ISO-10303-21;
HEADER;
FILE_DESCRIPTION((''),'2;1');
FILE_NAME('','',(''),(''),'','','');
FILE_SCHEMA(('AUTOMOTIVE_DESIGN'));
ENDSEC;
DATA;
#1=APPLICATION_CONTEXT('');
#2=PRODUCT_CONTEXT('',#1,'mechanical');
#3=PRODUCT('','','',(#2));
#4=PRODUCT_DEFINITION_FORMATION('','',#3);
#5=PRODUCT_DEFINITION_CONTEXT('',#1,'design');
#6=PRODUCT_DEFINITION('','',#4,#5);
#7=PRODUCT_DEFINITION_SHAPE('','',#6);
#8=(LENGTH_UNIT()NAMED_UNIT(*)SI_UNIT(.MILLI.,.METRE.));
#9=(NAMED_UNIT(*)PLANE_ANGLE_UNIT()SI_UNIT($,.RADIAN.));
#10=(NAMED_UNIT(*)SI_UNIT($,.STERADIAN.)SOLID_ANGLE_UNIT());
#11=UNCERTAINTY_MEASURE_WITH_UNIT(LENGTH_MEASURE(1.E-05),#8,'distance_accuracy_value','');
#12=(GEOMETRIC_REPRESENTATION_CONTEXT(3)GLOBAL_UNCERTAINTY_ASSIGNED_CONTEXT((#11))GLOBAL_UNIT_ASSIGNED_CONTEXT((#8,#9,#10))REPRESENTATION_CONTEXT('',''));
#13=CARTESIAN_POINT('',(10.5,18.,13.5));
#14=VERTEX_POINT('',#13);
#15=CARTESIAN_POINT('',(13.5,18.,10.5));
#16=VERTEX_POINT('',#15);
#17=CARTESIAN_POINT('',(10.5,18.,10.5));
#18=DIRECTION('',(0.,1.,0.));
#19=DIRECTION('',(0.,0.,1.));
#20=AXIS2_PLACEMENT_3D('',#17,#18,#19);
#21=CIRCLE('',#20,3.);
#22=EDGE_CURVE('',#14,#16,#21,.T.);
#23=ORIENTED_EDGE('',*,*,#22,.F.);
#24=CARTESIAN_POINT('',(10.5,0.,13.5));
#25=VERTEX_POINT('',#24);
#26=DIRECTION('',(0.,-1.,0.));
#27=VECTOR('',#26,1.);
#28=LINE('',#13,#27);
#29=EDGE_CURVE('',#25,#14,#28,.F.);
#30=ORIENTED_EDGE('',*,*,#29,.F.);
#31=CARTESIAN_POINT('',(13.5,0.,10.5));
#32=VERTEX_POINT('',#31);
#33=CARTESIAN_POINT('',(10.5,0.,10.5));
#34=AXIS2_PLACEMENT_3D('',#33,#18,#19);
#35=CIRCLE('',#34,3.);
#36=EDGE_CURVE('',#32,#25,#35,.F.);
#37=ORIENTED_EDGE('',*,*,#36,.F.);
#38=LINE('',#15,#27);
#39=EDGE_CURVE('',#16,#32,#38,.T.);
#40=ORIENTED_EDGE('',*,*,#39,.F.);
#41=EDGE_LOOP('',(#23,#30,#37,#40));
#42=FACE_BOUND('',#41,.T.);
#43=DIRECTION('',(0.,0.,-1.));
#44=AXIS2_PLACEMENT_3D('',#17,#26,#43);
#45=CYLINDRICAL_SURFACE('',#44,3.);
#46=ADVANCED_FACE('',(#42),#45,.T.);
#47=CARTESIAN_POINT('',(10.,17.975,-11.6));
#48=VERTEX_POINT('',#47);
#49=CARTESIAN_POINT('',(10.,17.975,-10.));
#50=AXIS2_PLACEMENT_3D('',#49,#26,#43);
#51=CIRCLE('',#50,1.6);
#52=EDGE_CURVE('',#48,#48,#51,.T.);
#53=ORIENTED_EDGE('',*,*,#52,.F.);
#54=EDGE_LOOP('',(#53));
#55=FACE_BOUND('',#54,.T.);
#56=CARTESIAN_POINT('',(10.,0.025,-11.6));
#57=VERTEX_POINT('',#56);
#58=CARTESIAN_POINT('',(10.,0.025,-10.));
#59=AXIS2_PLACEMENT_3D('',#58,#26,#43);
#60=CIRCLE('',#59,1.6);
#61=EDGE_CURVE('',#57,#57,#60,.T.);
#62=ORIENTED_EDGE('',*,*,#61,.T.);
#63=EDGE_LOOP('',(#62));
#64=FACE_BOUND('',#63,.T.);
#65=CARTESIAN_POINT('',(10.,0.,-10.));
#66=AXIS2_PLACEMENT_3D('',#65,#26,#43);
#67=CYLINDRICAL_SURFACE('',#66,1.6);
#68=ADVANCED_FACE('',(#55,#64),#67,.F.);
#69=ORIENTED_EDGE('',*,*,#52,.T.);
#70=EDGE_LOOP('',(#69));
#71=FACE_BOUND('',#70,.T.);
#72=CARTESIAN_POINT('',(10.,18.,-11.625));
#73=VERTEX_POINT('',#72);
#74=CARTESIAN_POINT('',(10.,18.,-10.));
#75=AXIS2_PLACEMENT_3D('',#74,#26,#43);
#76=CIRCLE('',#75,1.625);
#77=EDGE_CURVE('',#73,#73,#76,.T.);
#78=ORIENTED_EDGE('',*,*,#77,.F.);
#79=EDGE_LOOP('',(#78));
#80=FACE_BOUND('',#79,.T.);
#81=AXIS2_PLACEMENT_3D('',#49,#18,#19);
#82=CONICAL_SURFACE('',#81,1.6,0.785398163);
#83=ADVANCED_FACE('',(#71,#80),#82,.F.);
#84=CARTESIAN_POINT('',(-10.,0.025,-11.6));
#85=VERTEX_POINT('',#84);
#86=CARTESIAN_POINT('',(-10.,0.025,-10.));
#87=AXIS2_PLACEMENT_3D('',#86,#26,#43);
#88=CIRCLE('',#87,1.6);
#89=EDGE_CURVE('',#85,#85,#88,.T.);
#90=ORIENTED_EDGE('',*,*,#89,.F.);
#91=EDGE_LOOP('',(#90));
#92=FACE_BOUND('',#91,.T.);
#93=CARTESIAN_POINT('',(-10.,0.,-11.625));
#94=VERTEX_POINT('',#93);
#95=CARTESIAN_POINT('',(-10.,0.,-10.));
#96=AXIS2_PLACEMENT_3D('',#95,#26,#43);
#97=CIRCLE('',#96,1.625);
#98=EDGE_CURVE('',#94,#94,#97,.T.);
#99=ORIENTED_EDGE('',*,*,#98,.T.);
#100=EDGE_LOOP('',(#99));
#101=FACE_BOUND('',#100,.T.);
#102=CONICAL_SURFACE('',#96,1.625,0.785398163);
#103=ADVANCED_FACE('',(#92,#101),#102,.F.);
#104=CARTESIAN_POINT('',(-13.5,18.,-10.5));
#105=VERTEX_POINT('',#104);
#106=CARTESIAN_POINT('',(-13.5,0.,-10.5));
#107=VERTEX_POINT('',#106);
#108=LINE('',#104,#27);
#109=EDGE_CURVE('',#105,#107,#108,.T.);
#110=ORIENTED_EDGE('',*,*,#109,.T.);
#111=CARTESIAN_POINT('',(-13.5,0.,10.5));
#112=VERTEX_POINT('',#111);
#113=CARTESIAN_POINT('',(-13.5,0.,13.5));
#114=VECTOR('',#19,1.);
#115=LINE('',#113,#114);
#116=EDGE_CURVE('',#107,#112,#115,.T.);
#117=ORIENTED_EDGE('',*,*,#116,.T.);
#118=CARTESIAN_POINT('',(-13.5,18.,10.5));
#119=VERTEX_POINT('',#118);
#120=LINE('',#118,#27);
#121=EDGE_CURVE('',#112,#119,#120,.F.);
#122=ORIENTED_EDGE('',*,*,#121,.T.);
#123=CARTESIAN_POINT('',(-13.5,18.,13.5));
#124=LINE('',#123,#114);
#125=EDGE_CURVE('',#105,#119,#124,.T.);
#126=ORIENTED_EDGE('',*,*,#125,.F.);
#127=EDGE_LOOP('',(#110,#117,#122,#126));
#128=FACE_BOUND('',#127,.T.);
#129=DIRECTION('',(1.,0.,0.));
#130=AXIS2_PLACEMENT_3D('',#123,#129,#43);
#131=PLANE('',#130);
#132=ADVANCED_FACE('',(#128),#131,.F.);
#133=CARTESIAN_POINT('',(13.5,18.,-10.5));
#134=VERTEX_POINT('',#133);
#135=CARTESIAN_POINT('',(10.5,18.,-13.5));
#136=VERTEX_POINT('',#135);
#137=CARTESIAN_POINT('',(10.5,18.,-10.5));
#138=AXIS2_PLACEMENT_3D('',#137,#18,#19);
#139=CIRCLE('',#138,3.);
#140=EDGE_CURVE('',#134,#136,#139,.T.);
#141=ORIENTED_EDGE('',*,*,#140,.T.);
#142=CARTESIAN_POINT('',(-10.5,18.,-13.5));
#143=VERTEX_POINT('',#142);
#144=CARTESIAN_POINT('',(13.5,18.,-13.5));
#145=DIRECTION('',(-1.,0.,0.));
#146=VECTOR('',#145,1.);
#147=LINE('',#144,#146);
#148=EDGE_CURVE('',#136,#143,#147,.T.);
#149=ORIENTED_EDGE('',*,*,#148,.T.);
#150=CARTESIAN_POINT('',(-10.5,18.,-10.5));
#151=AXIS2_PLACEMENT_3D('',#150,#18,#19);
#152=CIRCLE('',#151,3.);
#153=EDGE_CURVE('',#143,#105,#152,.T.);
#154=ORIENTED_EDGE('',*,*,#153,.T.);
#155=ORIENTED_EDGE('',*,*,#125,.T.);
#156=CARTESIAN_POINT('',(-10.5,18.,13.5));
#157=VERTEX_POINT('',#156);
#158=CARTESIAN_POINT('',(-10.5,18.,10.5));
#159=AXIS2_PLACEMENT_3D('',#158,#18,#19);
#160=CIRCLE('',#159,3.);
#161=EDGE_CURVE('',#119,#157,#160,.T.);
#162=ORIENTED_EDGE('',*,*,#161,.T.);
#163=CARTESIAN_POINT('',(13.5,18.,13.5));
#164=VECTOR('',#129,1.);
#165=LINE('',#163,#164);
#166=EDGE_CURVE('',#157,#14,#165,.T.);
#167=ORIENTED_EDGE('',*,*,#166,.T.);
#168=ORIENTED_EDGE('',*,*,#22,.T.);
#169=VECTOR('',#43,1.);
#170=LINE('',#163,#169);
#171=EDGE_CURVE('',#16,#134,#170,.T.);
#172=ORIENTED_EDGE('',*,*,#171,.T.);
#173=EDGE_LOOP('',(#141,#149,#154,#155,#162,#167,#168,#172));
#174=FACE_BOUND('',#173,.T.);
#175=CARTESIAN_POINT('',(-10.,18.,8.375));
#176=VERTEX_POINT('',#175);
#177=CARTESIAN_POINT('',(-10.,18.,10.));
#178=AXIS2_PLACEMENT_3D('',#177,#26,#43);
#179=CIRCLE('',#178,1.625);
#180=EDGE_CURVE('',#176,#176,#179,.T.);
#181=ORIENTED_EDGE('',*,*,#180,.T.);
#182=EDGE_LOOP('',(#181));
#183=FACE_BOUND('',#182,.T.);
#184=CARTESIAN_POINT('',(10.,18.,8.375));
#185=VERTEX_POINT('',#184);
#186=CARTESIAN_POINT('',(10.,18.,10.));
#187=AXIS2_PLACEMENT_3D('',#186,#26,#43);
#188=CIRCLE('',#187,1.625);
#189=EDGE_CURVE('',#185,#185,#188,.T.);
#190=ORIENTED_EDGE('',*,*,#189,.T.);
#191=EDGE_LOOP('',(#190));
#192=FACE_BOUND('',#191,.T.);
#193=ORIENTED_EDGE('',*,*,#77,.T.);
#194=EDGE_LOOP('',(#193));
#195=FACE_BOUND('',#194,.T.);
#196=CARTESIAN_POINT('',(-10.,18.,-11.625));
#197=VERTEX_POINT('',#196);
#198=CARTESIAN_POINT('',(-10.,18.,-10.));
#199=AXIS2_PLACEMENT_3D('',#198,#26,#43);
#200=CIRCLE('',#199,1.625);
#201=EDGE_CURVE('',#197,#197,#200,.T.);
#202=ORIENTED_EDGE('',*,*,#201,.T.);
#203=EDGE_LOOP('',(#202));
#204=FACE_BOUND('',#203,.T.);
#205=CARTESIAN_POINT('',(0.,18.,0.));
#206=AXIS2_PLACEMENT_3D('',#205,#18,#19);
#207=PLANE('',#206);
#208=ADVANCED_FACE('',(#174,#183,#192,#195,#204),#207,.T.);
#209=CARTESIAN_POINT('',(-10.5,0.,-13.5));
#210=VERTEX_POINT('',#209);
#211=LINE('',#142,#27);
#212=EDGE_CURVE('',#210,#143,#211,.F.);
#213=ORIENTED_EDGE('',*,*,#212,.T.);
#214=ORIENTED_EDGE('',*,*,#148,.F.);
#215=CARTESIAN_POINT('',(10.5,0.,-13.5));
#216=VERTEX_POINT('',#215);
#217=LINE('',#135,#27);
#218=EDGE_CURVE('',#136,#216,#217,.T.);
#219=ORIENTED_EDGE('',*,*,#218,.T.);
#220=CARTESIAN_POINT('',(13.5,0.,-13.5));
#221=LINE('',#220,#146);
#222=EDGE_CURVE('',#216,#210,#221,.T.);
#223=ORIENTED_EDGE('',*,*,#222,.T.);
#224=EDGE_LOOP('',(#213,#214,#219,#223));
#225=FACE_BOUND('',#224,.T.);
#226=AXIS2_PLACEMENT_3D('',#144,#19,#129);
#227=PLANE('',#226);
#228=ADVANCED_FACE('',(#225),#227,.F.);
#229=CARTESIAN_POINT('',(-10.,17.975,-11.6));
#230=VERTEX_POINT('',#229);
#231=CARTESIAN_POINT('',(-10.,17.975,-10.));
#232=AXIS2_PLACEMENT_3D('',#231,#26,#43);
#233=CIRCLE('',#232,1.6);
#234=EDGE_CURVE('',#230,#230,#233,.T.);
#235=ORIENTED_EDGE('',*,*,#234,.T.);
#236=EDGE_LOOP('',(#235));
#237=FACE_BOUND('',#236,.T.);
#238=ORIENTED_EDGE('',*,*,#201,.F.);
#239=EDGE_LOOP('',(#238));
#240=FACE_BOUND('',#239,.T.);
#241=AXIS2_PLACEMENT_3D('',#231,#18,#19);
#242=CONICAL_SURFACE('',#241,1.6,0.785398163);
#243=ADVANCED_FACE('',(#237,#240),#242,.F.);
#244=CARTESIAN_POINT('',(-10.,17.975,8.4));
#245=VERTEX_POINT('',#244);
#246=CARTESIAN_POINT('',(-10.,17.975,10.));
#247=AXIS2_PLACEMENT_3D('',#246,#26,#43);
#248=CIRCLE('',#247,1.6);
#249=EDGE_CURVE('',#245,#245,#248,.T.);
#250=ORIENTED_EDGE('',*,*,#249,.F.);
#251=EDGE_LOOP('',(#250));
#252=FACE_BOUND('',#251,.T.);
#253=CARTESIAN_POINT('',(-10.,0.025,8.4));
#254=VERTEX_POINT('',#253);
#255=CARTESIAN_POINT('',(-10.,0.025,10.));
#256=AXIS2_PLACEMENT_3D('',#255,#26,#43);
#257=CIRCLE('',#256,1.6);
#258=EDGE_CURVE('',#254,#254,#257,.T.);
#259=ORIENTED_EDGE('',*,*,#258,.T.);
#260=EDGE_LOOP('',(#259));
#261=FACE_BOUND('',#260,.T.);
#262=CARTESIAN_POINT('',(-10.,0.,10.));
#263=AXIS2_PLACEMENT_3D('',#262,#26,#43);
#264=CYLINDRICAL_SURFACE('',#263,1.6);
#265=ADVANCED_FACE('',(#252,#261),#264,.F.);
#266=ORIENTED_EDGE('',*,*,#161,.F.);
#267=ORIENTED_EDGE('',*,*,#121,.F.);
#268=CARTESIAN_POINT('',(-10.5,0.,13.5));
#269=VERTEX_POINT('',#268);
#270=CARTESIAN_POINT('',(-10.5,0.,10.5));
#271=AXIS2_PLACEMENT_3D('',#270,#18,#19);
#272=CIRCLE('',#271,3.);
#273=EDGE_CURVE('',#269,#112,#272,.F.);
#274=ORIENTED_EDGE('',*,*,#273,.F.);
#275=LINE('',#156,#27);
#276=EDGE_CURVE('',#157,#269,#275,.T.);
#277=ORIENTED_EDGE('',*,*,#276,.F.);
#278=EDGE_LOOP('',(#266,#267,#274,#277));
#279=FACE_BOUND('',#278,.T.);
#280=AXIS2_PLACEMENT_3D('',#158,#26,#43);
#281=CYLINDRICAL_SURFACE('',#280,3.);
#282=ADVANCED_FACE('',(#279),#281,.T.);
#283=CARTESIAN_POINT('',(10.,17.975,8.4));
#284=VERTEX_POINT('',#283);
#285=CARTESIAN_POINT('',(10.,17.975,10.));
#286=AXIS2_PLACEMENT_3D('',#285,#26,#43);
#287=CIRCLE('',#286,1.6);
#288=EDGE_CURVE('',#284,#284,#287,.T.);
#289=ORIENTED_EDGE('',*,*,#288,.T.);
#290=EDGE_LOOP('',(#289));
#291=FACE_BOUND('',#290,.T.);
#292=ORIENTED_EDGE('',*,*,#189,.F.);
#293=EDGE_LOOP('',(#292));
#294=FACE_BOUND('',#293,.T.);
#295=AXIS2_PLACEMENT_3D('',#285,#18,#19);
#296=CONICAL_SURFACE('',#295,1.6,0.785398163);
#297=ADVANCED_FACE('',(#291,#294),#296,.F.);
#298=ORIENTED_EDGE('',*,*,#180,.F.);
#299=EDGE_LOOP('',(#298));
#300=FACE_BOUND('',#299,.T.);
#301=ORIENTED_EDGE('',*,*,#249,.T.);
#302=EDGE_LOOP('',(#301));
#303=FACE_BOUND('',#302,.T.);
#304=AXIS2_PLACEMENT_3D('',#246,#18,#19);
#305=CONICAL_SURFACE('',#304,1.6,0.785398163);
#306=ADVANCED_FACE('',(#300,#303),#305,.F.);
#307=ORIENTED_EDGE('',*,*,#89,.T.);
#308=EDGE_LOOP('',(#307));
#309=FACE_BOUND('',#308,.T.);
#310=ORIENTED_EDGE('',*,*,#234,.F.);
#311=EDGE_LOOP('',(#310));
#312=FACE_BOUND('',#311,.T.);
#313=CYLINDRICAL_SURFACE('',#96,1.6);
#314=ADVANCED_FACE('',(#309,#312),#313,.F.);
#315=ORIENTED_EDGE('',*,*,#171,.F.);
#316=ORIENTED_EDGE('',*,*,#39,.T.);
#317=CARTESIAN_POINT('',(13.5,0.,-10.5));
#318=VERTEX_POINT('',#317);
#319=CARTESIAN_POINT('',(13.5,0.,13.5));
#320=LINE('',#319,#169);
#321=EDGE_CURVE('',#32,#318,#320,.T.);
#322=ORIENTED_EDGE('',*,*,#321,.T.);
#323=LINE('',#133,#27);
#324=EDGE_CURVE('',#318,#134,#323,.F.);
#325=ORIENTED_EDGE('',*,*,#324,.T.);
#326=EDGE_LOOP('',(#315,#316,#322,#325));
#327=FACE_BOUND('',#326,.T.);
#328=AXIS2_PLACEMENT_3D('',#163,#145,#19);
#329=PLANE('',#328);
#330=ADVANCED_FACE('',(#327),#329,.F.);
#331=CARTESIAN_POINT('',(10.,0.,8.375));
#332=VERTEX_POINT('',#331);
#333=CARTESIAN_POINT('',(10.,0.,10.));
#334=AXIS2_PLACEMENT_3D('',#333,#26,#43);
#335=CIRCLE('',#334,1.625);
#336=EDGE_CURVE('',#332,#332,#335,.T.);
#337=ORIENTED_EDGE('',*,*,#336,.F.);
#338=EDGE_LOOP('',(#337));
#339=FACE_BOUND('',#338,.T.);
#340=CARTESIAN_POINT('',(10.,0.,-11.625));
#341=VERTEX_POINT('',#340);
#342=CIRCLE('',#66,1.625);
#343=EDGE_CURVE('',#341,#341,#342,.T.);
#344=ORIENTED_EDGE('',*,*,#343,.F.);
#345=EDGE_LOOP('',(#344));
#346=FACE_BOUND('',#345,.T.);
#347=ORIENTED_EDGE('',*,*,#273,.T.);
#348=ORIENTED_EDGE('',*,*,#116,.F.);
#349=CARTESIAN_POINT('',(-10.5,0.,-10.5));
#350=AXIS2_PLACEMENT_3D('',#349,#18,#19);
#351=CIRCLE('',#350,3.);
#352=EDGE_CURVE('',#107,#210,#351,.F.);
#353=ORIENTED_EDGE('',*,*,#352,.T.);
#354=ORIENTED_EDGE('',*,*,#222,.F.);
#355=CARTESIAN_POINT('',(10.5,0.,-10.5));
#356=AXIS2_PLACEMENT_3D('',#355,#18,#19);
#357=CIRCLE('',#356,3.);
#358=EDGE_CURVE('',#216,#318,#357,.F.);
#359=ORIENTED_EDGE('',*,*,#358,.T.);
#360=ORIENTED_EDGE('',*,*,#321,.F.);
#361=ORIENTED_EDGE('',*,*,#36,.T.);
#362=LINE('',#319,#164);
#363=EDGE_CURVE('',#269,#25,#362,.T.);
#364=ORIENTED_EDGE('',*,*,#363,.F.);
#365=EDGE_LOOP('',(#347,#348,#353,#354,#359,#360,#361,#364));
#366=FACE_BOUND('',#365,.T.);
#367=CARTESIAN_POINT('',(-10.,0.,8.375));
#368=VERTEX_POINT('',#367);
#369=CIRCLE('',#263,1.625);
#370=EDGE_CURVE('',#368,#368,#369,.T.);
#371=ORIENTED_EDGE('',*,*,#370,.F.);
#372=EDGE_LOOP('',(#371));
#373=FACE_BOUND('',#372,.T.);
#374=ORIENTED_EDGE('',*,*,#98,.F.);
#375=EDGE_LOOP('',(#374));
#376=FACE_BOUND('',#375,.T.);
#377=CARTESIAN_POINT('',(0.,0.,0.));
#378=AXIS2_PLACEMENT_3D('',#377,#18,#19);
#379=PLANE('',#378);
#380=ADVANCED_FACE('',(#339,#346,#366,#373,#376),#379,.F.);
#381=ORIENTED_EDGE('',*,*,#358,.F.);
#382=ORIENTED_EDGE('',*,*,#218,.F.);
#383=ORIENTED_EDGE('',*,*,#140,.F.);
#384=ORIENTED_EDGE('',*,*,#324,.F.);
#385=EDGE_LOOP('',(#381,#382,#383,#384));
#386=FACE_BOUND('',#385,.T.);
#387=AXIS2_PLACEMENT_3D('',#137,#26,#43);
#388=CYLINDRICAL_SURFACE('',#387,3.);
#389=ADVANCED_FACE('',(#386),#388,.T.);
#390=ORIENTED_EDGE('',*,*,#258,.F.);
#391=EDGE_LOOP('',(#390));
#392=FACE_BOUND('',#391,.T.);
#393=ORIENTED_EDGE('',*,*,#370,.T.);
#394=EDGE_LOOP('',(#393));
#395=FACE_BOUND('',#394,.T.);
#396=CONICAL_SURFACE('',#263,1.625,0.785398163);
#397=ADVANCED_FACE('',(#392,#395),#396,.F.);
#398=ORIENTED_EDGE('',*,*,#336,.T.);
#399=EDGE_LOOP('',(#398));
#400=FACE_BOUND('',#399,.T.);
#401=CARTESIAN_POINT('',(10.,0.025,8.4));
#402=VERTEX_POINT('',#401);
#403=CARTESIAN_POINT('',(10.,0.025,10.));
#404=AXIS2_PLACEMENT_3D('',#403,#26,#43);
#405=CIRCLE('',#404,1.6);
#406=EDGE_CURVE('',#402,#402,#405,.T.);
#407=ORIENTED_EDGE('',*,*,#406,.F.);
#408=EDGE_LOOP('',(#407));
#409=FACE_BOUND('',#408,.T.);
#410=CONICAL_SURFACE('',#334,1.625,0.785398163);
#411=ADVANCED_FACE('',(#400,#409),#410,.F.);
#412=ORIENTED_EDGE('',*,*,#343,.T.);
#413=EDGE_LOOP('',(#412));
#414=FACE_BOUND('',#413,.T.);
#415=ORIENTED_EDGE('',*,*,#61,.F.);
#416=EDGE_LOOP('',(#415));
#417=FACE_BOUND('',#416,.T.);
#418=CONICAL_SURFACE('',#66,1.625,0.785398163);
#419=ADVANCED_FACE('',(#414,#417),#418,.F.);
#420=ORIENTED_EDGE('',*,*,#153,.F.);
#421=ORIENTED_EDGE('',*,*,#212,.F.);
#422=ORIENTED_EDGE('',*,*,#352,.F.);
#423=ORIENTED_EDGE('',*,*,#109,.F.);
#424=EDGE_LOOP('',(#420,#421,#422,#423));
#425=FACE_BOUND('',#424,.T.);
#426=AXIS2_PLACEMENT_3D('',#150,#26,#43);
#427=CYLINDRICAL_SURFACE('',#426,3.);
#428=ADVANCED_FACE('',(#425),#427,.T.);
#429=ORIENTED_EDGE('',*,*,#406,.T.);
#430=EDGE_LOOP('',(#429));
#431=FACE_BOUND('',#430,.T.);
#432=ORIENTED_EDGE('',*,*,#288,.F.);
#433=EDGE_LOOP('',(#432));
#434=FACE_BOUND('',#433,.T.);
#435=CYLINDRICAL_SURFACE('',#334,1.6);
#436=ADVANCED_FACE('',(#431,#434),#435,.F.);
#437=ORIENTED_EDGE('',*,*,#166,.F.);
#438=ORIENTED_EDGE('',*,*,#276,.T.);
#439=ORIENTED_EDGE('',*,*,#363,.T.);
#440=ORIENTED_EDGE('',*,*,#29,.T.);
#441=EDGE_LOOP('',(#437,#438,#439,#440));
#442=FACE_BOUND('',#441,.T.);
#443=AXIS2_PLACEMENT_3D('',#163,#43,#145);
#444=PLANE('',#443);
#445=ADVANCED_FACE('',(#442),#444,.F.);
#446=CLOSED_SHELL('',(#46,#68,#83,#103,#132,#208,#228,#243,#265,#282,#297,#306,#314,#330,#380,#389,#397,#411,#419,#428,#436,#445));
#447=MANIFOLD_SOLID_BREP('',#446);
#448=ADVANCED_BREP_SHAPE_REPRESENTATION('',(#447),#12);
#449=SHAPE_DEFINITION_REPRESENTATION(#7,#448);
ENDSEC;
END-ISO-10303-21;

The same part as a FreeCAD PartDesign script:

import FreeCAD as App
import Part
import Sketcher

V = App.Vector


def edges_at(feature, points):
    """Names of the edges that pass closest to the given points."""
    edges = feature.Shape.Edges
    near = lambda p: min(range(len(edges)), key=lambda i: edges[i].distToShape(Part.Vertex(*p))[0])
    return sorted({f"Edge{near(p) + 1}" for p in points})


def add_polygon(sketch, points):
    """Adds a closed chain of lines whose ends are joined by coincident constraints."""
    first, n = sketch.GeometryCount, len(points)
    for a, b in zip(points, points[1:] + points[:1]):
        sketch.addGeometry(Part.LineSegment(App.Vector(*a, 0), App.Vector(*b, 0)), False)
    for i in range(n):
        sketch.addConstraint(Sketcher.Constraint("Coincident", first + i, 2, first + (i + 1) % n, 1))

doc = App.newDocument("Part")
params = doc.addObject("Spreadsheet::Sheet", "Params")
for row, (alias, value) in enumerate([
    ("sketch1_width", "27 mm"),
    ("pad1_length", "18 mm"),
    ("sketch2_width", "18 mm"),
    ("sketch2_width2", "17.95 mm"),
    ("groove_angle", "360 deg"),
    ("linearpattern_pitch", "20 mm"),
    ("linearpattern2_pitch", "28.284271 mm"),
    ("linearpattern3_pitch", "20 mm"),
    ("fillet_radius", "3 mm"),
], start=1):
    params.set(f"A{row}", alias)
    params.set(f"B{row}", "=" + value)
    params.setAlias(f"B{row}", alias)

body = doc.addObject("PartDesign::Body", "Body")

sketch1 = doc.addObject("Sketcher::SketchObject", "Sketch")
body.addObject(sketch1)
sketch1.AttachmentSupport = (doc.XZ_Plane, [""])
sketch1.MapMode = "FlatFace"
add_polygon(sketch1, [(-13.5, -13.5), (-13.5, 13.5), (13.5, 13.5), (13.5, -13.5)])
sketch1.addConstraint(Sketcher.Constraint("Vertical", 0))
sketch1.addConstraint(Sketcher.Constraint("Horizontal", 1))
sketch1.addConstraint(Sketcher.Constraint("Vertical", 2))
sketch1.addConstraint(Sketcher.Constraint("Horizontal", 3))
sketch1.addConstraint(Sketcher.Constraint("Symmetric", 0, 2, 2, 2, -1, 1))
sketch1.addConstraint(Sketcher.Constraint("Equal", 3, 0))
sketch1.addConstraint(Sketcher.Constraint("DistanceX", 1, 1, 1, 2, 27.0))
sketch1.setExpression("Constraints[10]", "Params.sketch1_width")
pad1 = doc.addObject("PartDesign::Pad", "Pad")
body.addObject(pad1)
pad1.Profile = sketch1
pad1.setExpression("Length", "Params.pad1_length")
pad1.Reversed = True

sketch2 = doc.addObject("Sketcher::SketchObject", "Sketch001")
body.addObject(sketch2)
sketch2.AttachmentSupport = (doc.YZ_Plane, [""])
sketch2.MapMode = "FlatFace"
sketch2.AttachmentOffset = App.Placement(V(0, 0, 10), App.Rotation())
add_polygon(sketch2, [(18, -10), (0, -10), (0, -11.625), (0.025, -11.6), (17.975, -11.6), (18, -11.625)])
sketch2.addGeometry(Part.LineSegment(V(0, -10, 0), V(18, -10, 0)), True)
sketch2.addConstraint(Sketcher.Constraint("Horizontal", 0))
sketch2.addConstraint(Sketcher.Constraint("Vertical", 1))
sketch2.addConstraint(Sketcher.Constraint("Horizontal", 3))
sketch2.addConstraint(Sketcher.Constraint("Vertical", 5))
sketch2.addConstraint(Sketcher.Constraint("Horizontal", 6))
sketch2.addConstraint(Sketcher.Constraint("Coincident", 6, 1, 0, 2))
sketch2.addConstraint(Sketcher.Constraint("PointOnObject", 0, 2, -2))
sketch2.addConstraint(Sketcher.Constraint("Perpendicular", 2, 4))
sketch2.addConstraint(Sketcher.Constraint("Horizontal", 1, 2, 4, 2))
sketch2.addConstraint(Sketcher.Constraint("Vertical", 4, 2, 6, 2))
sketch2.addConstraint(Sketcher.Constraint("Equal", 2, 4))
sketch2.addConstraint(Sketcher.Constraint("DistanceX", 0, 2, 0, 1, 18.0))
sketch2.addConstraint(Sketcher.Constraint("DistanceY", 0, 2, -1, 1, 10.0))
sketch2.addConstraint(Sketcher.Constraint("DistanceX", 3, 1, 3, 2, 17.95))
sketch2.addConstraint(Sketcher.Constraint("DistanceY", 2, 2, -1, 1, 11.6))
sketch2.setExpression("Constraints[17]", "Params.sketch2_width")
sketch2.setExpression("Constraints[19]", "Params.sketch2_width2")
groove = doc.addObject("PartDesign::Groove", "Groove")
body.addObject(groove)
groove.Profile = sketch2
groove.ReferenceAxis = (sketch2, ["Axis0"])
groove.setExpression("Angle", "Params.groove_angle")
doc.recompute()

linearpattern = doc.addObject("PartDesign::LinearPattern", "LinearPattern")
body.addObject(linearpattern)
linearpattern.Originals = [groove]
linearpattern.Direction = (doc.X_Axis, [""])
linearpattern.Mode = "offset"
linearpattern.setExpression("Offset", "Params.linearpattern_pitch")
linearpattern.Occurrences = 2
linearpattern.Reversed = True
body.Tip = linearpattern
doc.recompute()

datumline = doc.addObject("PartDesign::Line", "DatumLine")
body.addObject(datumline)
datumline.Placement = App.Placement(V(0, 0, 0), App.Rotation(V(0, 0, 1), V(-0.707106781, 0, 0.707106781)))
linearpattern2 = doc.addObject("PartDesign::LinearPattern", "LinearPattern001")
body.addObject(linearpattern2)
linearpattern2.Originals = [groove]
linearpattern2.Direction = (datumline, [""])
linearpattern2.Mode = "offset"
linearpattern2.setExpression("Offset", "Params.linearpattern2_pitch")
linearpattern2.Occurrences = 2
body.Tip = linearpattern2
doc.recompute()

linearpattern3 = doc.addObject("PartDesign::LinearPattern", "LinearPattern002")
body.addObject(linearpattern3)
linearpattern3.Originals = [groove]
linearpattern3.Direction = (doc.Z_Axis, [""])
linearpattern3.Mode = "offset"
linearpattern3.setExpression("Offset", "Params.linearpattern3_pitch")
linearpattern3.Occurrences = 2
body.Tip = linearpattern3
doc.recompute()

fillet = doc.addObject("PartDesign::Fillet", "Fillet")
body.addObject(fillet)
fillet.Base = (linearpattern3, edges_at(linearpattern3, [
    (-13.5, 9, -13.5),
    (13.5, 9, -13.5),
    (13.5, 9, 13.5),
    (-13.5, 9, 13.5),
]))
fillet.setExpression("Radius", "Params.fillet_radius")

doc.recompute()
